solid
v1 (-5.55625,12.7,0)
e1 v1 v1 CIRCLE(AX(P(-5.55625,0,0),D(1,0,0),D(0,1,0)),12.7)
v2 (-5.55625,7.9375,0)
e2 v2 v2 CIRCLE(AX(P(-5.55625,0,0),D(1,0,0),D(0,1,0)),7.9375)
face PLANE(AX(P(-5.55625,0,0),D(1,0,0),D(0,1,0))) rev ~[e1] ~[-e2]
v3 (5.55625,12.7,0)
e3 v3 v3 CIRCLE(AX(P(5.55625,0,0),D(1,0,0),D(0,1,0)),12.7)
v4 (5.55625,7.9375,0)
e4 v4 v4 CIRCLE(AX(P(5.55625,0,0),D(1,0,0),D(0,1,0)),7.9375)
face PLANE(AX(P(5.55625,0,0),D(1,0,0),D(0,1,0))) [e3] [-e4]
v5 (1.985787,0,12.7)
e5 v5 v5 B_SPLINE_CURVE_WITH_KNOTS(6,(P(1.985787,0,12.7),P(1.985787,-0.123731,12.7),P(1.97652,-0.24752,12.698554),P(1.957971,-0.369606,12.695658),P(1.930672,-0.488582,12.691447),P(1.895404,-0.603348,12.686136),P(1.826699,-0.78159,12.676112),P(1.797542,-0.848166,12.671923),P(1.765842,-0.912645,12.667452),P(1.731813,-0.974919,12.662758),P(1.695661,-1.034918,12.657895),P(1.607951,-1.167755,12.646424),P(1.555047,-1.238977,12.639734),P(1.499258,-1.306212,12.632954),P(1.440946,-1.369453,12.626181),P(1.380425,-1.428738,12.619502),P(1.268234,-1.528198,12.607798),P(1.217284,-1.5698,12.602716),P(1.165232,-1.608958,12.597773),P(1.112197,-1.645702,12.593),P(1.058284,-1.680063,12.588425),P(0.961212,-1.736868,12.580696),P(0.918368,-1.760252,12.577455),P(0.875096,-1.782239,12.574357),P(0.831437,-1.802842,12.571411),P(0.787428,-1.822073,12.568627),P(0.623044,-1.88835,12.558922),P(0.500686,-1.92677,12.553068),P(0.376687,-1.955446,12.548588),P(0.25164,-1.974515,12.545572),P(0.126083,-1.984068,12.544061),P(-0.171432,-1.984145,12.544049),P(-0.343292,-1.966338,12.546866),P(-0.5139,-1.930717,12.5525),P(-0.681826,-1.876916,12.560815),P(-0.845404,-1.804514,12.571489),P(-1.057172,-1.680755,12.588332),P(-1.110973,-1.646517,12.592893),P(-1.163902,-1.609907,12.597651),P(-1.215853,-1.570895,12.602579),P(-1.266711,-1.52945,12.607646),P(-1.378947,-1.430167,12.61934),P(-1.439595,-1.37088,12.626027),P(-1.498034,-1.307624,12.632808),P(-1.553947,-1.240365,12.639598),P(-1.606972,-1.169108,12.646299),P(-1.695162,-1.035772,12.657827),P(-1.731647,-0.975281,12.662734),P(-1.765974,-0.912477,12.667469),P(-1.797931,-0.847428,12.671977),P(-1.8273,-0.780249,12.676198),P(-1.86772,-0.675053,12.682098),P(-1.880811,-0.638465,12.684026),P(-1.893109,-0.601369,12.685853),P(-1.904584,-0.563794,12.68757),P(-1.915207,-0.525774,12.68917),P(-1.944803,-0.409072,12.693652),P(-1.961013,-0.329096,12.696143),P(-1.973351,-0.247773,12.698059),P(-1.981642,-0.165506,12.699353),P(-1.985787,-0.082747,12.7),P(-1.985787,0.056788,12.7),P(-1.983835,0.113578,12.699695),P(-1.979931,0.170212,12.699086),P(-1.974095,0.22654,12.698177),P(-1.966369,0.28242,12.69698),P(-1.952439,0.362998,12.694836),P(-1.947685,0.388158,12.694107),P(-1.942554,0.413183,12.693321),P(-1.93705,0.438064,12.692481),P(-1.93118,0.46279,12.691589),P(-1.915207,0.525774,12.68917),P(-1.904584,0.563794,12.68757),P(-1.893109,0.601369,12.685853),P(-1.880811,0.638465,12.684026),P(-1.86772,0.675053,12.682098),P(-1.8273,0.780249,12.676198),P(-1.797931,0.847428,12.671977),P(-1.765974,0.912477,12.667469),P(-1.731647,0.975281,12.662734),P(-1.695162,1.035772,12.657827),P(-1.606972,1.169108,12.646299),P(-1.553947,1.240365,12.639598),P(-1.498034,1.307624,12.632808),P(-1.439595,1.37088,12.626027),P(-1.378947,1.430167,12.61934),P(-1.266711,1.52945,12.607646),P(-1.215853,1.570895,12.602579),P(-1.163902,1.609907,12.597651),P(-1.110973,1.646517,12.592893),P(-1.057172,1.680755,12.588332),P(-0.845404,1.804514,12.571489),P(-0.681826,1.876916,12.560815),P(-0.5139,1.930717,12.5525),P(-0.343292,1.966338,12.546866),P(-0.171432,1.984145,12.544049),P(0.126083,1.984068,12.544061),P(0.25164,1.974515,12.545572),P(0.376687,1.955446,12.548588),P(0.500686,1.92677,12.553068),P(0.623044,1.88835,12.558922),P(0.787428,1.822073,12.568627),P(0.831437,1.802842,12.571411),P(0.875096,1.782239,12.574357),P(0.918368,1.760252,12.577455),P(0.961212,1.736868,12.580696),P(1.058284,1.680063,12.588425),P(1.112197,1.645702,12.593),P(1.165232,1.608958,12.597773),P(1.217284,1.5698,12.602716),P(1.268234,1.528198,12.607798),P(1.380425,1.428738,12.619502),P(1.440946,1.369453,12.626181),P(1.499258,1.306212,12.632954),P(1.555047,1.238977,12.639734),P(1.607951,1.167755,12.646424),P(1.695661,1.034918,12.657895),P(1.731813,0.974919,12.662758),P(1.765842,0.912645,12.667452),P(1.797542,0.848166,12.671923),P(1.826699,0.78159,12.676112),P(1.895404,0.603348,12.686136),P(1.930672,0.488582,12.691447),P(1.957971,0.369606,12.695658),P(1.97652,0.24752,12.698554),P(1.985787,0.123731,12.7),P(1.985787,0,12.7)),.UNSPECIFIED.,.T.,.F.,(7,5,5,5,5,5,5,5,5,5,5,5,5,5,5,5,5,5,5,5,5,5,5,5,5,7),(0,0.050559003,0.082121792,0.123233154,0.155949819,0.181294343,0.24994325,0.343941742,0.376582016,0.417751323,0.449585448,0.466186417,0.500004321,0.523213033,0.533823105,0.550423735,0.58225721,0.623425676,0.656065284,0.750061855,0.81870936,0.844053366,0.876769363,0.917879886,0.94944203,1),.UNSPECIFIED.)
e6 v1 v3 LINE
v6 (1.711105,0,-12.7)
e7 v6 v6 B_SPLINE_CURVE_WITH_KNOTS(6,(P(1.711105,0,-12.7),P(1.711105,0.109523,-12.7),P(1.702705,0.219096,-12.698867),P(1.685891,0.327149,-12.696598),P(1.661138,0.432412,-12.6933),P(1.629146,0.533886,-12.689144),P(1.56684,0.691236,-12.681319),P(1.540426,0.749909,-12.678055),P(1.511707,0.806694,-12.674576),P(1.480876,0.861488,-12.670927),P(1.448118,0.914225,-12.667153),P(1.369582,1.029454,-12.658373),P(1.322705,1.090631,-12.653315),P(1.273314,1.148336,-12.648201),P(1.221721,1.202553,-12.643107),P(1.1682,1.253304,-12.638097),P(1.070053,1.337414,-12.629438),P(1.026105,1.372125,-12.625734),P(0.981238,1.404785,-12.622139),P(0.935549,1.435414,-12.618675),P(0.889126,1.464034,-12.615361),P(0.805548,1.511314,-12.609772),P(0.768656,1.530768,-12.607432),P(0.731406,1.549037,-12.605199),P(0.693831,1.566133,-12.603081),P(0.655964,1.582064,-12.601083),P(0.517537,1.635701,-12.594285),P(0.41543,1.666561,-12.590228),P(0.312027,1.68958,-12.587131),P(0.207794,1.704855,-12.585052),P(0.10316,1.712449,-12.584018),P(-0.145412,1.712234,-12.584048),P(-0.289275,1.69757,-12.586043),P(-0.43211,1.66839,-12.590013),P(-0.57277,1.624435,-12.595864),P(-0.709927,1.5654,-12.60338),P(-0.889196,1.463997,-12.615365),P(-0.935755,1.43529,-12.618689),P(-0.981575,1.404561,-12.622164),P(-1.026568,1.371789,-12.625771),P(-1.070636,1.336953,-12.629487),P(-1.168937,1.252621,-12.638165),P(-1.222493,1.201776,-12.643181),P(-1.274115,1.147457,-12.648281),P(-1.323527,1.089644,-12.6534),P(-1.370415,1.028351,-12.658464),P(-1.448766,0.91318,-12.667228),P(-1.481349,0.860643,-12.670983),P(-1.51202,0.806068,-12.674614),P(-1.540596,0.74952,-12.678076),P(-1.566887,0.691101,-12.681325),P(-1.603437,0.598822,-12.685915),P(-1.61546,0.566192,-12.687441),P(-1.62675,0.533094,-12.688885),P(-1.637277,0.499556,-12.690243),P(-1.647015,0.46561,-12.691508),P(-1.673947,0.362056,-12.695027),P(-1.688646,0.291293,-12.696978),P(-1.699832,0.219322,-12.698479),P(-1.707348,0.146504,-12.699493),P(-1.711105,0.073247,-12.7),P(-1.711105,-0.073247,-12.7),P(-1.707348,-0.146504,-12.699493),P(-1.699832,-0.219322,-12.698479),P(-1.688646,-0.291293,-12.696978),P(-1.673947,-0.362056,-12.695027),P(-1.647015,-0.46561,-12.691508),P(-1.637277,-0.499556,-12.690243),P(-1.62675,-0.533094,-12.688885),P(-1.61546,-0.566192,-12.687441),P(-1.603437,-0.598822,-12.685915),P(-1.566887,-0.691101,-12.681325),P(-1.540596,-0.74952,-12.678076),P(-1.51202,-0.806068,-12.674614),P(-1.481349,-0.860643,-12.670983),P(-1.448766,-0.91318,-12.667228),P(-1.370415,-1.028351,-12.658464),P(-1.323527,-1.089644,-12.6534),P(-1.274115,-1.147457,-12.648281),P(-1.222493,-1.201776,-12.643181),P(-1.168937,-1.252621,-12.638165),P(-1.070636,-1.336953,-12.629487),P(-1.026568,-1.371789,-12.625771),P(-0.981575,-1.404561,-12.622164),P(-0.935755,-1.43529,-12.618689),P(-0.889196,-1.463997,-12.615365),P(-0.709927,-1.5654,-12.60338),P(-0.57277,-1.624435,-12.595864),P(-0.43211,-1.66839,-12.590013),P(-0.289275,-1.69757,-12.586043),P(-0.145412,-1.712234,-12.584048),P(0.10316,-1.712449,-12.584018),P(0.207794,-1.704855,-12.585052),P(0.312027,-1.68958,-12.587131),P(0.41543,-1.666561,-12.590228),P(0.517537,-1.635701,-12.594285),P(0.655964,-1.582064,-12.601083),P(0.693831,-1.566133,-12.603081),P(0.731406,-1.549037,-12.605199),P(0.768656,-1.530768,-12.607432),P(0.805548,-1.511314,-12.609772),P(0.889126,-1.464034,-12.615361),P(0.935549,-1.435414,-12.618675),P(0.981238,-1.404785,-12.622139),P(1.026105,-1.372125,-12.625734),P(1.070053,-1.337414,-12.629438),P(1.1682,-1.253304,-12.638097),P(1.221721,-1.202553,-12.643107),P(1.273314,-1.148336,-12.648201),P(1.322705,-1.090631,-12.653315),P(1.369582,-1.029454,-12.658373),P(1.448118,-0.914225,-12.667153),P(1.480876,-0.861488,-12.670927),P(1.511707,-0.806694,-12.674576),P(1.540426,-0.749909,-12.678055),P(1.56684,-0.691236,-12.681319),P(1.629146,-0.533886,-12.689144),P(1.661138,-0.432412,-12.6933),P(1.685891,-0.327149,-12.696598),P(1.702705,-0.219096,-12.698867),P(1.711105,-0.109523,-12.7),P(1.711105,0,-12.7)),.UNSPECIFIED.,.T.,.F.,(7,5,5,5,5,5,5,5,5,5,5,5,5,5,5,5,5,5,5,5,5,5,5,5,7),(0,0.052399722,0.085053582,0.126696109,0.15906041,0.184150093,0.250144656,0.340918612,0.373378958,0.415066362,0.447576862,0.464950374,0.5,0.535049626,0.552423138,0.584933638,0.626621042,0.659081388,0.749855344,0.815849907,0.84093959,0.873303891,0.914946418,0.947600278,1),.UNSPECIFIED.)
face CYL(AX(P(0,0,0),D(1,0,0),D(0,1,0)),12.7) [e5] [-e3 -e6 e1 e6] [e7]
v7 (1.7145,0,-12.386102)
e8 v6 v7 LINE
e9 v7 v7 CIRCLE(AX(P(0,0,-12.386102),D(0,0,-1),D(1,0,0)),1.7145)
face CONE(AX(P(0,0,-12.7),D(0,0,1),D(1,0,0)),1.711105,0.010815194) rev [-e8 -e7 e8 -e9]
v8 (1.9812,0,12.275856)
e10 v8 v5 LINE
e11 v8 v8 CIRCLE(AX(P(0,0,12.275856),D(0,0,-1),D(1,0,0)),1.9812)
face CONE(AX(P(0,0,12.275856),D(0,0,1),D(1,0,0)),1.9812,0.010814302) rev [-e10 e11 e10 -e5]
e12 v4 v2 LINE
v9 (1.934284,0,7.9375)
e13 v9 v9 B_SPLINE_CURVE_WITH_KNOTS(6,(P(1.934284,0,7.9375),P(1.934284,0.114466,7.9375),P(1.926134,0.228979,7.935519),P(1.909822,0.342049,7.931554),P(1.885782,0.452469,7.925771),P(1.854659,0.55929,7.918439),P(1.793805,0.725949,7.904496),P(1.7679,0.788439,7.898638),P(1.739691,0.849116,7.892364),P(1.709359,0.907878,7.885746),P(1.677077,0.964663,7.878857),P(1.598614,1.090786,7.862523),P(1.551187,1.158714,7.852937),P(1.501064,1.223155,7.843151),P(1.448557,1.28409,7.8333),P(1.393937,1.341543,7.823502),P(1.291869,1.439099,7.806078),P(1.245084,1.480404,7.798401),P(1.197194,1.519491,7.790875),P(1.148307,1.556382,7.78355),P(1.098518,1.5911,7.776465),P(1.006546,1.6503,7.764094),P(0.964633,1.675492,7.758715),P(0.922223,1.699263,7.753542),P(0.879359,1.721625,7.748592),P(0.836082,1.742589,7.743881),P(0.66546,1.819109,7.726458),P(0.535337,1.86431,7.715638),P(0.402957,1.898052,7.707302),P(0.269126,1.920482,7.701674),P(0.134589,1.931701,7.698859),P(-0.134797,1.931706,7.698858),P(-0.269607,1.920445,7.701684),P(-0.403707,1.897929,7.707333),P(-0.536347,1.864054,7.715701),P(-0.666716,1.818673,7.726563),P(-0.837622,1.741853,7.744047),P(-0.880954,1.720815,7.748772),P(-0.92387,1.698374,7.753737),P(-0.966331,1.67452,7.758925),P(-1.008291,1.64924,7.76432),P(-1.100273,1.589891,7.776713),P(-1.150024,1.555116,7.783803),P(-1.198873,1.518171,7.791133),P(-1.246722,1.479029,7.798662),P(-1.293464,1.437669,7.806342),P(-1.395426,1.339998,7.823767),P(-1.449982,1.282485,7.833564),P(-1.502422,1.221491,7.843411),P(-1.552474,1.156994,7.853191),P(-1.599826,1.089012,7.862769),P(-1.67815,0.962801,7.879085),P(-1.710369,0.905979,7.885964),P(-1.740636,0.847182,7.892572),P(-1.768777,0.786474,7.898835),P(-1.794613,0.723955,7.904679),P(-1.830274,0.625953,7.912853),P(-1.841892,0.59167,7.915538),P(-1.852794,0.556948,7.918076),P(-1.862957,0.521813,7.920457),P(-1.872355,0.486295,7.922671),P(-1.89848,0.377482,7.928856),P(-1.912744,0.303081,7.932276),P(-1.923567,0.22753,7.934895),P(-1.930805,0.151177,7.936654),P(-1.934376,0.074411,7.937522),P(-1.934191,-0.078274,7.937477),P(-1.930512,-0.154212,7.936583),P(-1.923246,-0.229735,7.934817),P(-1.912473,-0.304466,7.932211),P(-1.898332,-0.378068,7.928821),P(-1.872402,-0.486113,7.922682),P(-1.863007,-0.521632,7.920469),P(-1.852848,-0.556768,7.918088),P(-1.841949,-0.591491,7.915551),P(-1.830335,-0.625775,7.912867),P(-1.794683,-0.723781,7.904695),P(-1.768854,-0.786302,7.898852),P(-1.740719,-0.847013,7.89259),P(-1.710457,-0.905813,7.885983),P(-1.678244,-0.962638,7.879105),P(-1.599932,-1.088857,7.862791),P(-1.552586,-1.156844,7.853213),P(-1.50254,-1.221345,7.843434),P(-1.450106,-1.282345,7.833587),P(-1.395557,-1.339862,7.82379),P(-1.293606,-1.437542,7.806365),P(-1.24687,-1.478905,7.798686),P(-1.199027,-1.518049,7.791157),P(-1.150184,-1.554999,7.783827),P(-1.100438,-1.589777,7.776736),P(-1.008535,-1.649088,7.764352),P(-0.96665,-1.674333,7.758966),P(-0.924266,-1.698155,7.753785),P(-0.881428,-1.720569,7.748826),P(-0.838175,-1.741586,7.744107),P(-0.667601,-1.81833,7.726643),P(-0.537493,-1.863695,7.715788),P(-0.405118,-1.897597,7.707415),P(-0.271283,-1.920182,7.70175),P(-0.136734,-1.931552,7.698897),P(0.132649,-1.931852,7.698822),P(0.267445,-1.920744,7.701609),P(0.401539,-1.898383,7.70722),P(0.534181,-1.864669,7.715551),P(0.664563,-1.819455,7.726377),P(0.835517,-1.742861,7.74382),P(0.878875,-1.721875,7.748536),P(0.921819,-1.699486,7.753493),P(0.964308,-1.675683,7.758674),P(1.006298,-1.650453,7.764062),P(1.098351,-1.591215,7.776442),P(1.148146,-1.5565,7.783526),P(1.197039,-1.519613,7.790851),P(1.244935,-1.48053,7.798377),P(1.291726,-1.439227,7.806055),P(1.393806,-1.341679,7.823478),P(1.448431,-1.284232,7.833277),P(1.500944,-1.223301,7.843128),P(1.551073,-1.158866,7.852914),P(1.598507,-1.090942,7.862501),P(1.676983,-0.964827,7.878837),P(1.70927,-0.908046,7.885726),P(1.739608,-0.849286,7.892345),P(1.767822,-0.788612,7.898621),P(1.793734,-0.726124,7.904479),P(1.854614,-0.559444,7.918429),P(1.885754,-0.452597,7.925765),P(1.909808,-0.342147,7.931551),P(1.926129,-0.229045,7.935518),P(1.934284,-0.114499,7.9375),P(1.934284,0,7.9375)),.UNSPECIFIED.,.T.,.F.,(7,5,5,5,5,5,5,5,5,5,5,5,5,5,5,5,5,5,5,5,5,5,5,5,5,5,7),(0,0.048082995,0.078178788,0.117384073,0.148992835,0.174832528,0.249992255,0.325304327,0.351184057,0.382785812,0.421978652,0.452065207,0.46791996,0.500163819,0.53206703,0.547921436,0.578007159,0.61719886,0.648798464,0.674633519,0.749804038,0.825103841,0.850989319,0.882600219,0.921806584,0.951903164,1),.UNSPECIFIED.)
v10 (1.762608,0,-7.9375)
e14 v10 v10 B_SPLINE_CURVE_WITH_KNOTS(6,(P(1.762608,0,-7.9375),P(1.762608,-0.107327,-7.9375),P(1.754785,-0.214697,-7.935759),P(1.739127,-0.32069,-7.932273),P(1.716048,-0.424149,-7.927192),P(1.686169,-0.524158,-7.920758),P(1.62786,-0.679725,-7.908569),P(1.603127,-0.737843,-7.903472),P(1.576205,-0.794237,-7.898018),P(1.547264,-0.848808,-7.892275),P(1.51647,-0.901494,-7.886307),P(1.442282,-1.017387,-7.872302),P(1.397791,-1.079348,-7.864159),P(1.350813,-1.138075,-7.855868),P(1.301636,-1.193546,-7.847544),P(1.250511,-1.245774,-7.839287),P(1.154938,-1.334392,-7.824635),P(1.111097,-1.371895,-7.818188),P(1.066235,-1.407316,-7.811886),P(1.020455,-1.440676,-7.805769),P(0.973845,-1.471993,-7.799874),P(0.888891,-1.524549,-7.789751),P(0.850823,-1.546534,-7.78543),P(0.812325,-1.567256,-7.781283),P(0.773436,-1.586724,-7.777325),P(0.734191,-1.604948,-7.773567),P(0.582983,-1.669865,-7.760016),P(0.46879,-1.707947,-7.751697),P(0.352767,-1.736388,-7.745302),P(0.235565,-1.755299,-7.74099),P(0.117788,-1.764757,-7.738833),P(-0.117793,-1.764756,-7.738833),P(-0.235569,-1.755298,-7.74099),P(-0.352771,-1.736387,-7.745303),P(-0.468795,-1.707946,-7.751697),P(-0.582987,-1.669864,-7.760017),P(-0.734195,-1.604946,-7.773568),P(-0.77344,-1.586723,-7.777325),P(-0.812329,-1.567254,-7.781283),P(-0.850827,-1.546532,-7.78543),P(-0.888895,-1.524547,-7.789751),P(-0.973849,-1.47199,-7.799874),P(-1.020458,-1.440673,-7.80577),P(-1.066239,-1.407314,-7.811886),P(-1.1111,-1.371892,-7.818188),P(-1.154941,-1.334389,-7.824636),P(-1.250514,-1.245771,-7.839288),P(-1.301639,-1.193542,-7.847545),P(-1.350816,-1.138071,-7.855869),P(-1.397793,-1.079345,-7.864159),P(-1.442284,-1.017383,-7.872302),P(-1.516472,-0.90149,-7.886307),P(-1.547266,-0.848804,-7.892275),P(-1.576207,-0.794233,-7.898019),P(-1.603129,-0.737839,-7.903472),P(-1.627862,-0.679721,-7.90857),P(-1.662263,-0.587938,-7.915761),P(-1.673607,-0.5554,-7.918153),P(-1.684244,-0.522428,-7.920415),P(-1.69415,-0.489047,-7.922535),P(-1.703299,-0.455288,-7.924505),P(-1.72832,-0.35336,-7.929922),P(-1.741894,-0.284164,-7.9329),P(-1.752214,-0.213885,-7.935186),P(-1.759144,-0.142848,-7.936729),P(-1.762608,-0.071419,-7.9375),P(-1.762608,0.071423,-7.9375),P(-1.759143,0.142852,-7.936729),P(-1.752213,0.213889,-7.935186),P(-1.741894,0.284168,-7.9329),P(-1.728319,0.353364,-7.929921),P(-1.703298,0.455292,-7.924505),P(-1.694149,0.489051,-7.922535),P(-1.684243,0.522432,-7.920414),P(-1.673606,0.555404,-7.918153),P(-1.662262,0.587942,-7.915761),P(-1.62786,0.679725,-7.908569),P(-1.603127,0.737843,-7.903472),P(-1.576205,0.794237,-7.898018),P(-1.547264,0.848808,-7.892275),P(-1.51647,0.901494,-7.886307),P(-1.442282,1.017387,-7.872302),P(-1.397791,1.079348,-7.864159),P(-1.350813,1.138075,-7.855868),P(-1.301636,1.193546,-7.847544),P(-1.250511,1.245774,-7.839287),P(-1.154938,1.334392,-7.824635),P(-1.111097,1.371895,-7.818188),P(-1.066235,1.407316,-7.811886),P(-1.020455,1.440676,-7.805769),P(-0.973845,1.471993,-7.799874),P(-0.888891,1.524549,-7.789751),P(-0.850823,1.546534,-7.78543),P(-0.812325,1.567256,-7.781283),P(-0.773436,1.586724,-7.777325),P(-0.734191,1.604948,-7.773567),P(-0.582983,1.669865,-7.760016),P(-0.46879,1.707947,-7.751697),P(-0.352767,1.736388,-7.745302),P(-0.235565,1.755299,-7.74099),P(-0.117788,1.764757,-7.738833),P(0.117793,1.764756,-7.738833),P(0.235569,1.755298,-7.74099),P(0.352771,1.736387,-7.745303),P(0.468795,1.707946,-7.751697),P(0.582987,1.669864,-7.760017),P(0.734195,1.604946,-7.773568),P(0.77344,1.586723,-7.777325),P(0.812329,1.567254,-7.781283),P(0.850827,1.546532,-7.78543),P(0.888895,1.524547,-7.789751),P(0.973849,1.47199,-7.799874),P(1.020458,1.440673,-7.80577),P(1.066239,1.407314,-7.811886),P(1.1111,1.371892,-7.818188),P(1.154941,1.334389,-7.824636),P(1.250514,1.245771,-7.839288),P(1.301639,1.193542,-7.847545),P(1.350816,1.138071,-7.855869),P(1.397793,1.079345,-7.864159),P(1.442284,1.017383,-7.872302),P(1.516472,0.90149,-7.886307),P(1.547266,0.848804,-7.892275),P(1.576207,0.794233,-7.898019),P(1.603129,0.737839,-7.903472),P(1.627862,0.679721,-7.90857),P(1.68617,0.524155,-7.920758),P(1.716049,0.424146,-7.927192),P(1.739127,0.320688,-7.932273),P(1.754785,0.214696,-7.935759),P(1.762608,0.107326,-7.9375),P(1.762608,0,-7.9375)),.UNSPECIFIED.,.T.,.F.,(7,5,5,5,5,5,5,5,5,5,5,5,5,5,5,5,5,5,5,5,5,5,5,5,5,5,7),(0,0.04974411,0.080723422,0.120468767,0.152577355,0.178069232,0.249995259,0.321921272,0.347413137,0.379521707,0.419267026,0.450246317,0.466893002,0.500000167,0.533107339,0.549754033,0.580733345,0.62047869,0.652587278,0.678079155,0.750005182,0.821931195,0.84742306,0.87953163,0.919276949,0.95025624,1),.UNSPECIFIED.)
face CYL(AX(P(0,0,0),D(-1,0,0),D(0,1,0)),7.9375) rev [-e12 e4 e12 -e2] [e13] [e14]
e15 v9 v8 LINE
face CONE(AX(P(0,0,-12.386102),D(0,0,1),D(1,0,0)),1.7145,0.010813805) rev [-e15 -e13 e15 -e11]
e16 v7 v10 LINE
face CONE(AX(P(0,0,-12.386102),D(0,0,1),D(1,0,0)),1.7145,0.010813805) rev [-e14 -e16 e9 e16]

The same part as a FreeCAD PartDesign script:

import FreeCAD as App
import Part
import Sketcher

V = App.Vector
Q = App.Units.Quantity


def add_polygon(sketch, points):
    """Adds a closed chain of lines whose ends are joined by coincident constraints."""
    first, n = sketch.GeometryCount, len(points)
    for a, b in zip(points, points[1:] + points[:1]):
        sketch.addGeometry(Part.LineSegment(App.Vector(*a, 0), App.Vector(*b, 0)), False)
    for i in range(n):
        sketch.addConstraint(Sketcher.Constraint("Coincident", first + i, 2, first + (i + 1) % n, 1))

doc = App.newDocument("Part")
body = doc.addObject("PartDesign::Body", "Body")

sketch1 = doc.addObject("Sketcher::SketchObject", "Sketch")
body.addObject(sketch1)
sketch1.AttachmentSupport = (doc.YZ_Plane, [""])
sketch1.MapMode = "FlatFace"
sketch1.addGeometry(Part.Circle(V(0, 0, 0), V(0, 0, 1), 13), False)
sketch1.addGeometry(Part.Circle(V(0, 0, 0), V(0, 0, 1), 8), False)
sketch1.addConstraint(Sketcher.Constraint("Coincident", 0, 3, -1, 1))
sketch1.addConstraint(Sketcher.Constraint("Coincident", 1, 3, -1, 1))
sketch1.addConstraint(Sketcher.Constraint("Diameter", 0, Q("1 in")))
sketch1.addConstraint(Sketcher.Constraint("Diameter", 1, Q("0.625 in")))
pad1 = doc.addObject("PartDesign::Pad", "Pad")
body.addObject(pad1)
pad1.Profile = sketch1
pad1.Length = Q("0.4375 in")
pad1.Midplane = True

sketch2 = doc.addObject("Sketcher::SketchObject", "Sketch001")
body.addObject(sketch2)
sketch2.AttachmentSupport = (doc.XZ_Plane, [""])
sketch2.MapMode = "FlatFace"
add_polygon(sketch2, [(1.71, -12.39), (1.98, 12.28), (1.99, 12.7), (0, 12.7), (0, -12.7), (1.71, -12.7)])
sketch2.addConstraint(Sketcher.Constraint("Horizontal", 2))
sketch2.addConstraint(Sketcher.Constraint("Vertical", 3))
sketch2.addConstraint(Sketcher.Constraint("Horizontal", 4))
sketch2.addConstraint(Sketcher.Constraint("Symmetric", 2, 2, 3, 2, -1, 1))
sketch2.addConstraint(Sketcher.Constraint("Parallel", 0, 1))
sketch2.addConstraint(Sketcher.Constraint("Parallel", 1, 5))
sketch2.addConstraint(Sketcher.Constraint("DistanceY", 3, 2, 3, 1, Q("1 in")))
sketch2.addConstraint(Sketcher.Constraint("Distance", 0, Q("0.971 in")))
sketch2.addConstraint(Sketcher.Constraint("DistanceX", -1, 1, 0, 2, Q("0.078 in")))
sketch2.addConstraint(Sketcher.Constraint("DistanceX", -1, 1, 5, 2, Q("0.0675 in")))
sketch2.addConstraint(Sketcher.Constraint("DistanceY", 5, 2, -1, 1, Q("12.386102 mm")))
groove = doc.addObject("PartDesign::Groove", "Groove")
body.addObject(groove)
groove.Profile = sketch2
groove.ReferenceAxis = (sketch2, ["V_Axis"])
groove.Angle = 360

doc.recompute()
